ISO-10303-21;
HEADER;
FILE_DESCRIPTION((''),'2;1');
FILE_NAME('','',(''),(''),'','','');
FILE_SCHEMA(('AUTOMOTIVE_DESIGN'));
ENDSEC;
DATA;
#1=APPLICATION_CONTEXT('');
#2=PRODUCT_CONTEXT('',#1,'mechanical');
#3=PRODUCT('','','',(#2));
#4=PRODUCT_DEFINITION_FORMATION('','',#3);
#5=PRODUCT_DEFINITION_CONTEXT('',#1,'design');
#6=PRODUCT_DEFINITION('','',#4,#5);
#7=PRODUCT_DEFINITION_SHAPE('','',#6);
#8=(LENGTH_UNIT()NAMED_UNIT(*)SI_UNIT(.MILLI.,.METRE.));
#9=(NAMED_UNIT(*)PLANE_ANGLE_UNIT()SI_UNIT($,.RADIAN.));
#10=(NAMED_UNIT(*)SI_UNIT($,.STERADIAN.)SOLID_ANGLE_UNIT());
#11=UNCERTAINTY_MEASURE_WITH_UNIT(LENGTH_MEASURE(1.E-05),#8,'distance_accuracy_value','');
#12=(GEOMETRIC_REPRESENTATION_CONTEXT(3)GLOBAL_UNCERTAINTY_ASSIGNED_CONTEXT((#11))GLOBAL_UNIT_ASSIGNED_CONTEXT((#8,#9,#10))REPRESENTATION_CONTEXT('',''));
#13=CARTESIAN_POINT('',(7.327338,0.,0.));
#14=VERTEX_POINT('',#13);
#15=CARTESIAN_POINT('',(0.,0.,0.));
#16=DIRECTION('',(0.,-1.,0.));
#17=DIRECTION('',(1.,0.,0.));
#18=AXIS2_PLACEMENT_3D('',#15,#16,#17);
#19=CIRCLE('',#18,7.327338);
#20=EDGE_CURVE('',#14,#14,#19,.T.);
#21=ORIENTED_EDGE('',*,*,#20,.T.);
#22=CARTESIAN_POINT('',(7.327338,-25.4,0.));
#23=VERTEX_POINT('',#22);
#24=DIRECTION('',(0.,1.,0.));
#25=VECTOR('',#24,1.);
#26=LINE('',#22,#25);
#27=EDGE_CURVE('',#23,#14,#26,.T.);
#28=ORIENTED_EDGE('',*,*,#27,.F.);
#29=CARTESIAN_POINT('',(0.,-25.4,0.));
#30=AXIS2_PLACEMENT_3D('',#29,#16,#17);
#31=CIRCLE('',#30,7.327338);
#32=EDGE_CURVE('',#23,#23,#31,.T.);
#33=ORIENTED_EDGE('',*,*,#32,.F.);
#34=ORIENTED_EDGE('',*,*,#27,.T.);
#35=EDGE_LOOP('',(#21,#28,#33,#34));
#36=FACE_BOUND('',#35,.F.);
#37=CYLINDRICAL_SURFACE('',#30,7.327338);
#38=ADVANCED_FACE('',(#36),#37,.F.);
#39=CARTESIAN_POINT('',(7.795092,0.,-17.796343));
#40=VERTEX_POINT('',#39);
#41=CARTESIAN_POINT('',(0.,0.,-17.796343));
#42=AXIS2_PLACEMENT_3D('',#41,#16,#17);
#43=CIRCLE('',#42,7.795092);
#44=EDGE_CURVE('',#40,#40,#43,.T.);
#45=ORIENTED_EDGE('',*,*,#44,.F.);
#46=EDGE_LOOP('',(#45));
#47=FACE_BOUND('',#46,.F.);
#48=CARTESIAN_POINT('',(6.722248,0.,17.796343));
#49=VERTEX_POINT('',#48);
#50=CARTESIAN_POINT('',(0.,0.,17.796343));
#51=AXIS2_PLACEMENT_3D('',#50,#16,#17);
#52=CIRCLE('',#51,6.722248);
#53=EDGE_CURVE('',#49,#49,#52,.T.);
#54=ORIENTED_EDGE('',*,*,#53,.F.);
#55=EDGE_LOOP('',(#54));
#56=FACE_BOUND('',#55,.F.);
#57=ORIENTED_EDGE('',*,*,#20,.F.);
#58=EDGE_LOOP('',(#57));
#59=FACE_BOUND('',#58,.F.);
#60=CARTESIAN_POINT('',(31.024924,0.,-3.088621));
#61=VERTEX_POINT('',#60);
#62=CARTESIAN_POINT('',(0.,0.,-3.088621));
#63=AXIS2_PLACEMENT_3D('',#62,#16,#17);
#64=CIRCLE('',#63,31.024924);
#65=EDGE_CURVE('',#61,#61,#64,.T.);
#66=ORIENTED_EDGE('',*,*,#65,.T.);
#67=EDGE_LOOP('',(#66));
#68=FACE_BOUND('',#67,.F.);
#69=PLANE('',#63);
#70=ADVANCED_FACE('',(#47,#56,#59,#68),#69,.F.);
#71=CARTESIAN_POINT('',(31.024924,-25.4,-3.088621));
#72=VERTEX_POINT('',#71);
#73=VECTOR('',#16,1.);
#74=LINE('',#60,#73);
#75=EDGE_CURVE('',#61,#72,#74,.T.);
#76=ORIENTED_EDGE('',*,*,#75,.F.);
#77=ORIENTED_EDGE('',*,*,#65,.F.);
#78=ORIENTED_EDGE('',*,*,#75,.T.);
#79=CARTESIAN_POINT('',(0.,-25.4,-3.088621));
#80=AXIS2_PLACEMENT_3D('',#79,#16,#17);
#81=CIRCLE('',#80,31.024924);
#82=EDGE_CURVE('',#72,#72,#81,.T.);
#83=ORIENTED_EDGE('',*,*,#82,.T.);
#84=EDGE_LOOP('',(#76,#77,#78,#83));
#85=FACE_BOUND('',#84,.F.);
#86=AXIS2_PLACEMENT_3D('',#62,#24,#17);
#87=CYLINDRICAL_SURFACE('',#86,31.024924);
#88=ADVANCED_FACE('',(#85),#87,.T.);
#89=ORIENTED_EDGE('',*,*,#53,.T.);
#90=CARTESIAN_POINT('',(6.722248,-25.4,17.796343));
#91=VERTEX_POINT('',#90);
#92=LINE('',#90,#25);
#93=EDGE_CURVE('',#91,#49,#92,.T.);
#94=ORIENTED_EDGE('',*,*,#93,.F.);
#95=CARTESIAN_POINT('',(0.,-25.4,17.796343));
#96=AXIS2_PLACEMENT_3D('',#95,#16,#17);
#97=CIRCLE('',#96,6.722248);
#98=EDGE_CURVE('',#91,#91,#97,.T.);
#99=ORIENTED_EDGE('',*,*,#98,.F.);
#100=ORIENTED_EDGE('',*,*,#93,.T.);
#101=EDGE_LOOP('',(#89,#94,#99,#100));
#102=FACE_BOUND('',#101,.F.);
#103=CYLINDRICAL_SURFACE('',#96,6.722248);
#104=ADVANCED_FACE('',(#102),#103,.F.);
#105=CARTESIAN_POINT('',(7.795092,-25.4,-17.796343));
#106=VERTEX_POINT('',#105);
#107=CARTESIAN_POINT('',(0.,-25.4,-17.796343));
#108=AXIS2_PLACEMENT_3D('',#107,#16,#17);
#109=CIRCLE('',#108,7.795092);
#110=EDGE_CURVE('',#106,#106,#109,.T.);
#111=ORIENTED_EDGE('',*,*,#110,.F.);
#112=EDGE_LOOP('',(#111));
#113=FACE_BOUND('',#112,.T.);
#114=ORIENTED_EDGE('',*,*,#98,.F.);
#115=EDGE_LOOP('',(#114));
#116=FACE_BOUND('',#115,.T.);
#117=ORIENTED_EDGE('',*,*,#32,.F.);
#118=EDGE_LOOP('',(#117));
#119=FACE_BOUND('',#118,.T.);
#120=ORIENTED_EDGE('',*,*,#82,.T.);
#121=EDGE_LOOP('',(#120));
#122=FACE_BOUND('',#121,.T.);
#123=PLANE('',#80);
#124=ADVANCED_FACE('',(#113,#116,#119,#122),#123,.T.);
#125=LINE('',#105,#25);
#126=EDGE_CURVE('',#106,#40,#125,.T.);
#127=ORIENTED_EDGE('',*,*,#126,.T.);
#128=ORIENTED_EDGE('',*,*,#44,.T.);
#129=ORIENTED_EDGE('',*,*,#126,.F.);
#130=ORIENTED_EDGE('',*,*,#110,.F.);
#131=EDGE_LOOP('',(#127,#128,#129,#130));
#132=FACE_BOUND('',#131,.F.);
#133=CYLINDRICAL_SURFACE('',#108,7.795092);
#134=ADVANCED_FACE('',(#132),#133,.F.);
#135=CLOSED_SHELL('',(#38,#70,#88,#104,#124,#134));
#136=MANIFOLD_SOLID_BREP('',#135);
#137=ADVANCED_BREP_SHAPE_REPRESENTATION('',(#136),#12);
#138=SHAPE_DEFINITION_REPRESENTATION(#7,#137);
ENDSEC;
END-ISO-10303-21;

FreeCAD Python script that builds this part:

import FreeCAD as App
import Part
import Sketcher
from FreeCAD import Vector
Q = App.Units.Quantity

doc = App.newDocument("Part")
body = doc.addObject("PartDesign::Body", "Body")

# Sketch on XZ plane
sketch1 = body.newObject("Sketcher::SketchObject", "Sketch")
sketch1.AttachmentSupport = (doc.getObject("XZ_Plane"), [""])
sketch1.MapMode = "FlatFace"
sketch1.addGeometry(Part.Circle(Vector(0, -3, 0), Vector(0, 0, 1), 31), False)
sketch1.addConstraint([
    Sketcher.Constraint("PointOnObject", 0, 3, -2),
    Sketcher.Constraint("Diameter", 0, 62.049848),
    Sketcher.Constraint("DistanceY", 0, 3, -1, 1, 3.088621),
])
pad1 = body.newObject("PartDesign::Pad", "Pad")
pad1.Profile = sketch1
pad1.Length = Q("1 in")

# Sketch on XZ plane
sketch2 = body.newObject("Sketcher::SketchObject", "Sketch001")
sketch2.AttachmentSupport = (doc.getObject("XZ_Plane"), [""])
sketch2.MapMode = "FlatFace"
sketch2.AttachmentOffset = App.Placement(Vector(0, 0, 1 * 25.4), App.Rotation())
sketch2.addGeometry([
    Part.Circle(Vector(0, 0, 0), Vector(0, 0, 1), 7),
    Part.Circle(Vector(0, -18, 0), Vector(0, 0, 1), 8),
    Part.Circle(Vector(0, 18, 0), Vector(0, 0, 1), 7),
], False)
sketch2.addConstraint([
    Sketcher.Constraint("Coincident", 0, 3, -1, 1),
    Sketcher.Constraint("Symmetric", 1, 3, 2, 3, -1, 1),
    Sketcher.Constraint("PointOnObject", 1, 3, -2),
    Sketcher.Constraint("Diameter", 0, 14.654676),
    Sketcher.Constraint("Diameter", 1, 15.590184),
    Sketcher.Constraint("Diameter", 2, 13.444496),
    Sketcher.Constraint("DistanceY", 1, 3, -1, 1, 17.796343),
])
pocket1 = body.newObject("PartDesign::Pocket", "Pocket")
pocket1.Profile = sketch2
pocket1.Type = "ThroughAll"

doc.recompute()
